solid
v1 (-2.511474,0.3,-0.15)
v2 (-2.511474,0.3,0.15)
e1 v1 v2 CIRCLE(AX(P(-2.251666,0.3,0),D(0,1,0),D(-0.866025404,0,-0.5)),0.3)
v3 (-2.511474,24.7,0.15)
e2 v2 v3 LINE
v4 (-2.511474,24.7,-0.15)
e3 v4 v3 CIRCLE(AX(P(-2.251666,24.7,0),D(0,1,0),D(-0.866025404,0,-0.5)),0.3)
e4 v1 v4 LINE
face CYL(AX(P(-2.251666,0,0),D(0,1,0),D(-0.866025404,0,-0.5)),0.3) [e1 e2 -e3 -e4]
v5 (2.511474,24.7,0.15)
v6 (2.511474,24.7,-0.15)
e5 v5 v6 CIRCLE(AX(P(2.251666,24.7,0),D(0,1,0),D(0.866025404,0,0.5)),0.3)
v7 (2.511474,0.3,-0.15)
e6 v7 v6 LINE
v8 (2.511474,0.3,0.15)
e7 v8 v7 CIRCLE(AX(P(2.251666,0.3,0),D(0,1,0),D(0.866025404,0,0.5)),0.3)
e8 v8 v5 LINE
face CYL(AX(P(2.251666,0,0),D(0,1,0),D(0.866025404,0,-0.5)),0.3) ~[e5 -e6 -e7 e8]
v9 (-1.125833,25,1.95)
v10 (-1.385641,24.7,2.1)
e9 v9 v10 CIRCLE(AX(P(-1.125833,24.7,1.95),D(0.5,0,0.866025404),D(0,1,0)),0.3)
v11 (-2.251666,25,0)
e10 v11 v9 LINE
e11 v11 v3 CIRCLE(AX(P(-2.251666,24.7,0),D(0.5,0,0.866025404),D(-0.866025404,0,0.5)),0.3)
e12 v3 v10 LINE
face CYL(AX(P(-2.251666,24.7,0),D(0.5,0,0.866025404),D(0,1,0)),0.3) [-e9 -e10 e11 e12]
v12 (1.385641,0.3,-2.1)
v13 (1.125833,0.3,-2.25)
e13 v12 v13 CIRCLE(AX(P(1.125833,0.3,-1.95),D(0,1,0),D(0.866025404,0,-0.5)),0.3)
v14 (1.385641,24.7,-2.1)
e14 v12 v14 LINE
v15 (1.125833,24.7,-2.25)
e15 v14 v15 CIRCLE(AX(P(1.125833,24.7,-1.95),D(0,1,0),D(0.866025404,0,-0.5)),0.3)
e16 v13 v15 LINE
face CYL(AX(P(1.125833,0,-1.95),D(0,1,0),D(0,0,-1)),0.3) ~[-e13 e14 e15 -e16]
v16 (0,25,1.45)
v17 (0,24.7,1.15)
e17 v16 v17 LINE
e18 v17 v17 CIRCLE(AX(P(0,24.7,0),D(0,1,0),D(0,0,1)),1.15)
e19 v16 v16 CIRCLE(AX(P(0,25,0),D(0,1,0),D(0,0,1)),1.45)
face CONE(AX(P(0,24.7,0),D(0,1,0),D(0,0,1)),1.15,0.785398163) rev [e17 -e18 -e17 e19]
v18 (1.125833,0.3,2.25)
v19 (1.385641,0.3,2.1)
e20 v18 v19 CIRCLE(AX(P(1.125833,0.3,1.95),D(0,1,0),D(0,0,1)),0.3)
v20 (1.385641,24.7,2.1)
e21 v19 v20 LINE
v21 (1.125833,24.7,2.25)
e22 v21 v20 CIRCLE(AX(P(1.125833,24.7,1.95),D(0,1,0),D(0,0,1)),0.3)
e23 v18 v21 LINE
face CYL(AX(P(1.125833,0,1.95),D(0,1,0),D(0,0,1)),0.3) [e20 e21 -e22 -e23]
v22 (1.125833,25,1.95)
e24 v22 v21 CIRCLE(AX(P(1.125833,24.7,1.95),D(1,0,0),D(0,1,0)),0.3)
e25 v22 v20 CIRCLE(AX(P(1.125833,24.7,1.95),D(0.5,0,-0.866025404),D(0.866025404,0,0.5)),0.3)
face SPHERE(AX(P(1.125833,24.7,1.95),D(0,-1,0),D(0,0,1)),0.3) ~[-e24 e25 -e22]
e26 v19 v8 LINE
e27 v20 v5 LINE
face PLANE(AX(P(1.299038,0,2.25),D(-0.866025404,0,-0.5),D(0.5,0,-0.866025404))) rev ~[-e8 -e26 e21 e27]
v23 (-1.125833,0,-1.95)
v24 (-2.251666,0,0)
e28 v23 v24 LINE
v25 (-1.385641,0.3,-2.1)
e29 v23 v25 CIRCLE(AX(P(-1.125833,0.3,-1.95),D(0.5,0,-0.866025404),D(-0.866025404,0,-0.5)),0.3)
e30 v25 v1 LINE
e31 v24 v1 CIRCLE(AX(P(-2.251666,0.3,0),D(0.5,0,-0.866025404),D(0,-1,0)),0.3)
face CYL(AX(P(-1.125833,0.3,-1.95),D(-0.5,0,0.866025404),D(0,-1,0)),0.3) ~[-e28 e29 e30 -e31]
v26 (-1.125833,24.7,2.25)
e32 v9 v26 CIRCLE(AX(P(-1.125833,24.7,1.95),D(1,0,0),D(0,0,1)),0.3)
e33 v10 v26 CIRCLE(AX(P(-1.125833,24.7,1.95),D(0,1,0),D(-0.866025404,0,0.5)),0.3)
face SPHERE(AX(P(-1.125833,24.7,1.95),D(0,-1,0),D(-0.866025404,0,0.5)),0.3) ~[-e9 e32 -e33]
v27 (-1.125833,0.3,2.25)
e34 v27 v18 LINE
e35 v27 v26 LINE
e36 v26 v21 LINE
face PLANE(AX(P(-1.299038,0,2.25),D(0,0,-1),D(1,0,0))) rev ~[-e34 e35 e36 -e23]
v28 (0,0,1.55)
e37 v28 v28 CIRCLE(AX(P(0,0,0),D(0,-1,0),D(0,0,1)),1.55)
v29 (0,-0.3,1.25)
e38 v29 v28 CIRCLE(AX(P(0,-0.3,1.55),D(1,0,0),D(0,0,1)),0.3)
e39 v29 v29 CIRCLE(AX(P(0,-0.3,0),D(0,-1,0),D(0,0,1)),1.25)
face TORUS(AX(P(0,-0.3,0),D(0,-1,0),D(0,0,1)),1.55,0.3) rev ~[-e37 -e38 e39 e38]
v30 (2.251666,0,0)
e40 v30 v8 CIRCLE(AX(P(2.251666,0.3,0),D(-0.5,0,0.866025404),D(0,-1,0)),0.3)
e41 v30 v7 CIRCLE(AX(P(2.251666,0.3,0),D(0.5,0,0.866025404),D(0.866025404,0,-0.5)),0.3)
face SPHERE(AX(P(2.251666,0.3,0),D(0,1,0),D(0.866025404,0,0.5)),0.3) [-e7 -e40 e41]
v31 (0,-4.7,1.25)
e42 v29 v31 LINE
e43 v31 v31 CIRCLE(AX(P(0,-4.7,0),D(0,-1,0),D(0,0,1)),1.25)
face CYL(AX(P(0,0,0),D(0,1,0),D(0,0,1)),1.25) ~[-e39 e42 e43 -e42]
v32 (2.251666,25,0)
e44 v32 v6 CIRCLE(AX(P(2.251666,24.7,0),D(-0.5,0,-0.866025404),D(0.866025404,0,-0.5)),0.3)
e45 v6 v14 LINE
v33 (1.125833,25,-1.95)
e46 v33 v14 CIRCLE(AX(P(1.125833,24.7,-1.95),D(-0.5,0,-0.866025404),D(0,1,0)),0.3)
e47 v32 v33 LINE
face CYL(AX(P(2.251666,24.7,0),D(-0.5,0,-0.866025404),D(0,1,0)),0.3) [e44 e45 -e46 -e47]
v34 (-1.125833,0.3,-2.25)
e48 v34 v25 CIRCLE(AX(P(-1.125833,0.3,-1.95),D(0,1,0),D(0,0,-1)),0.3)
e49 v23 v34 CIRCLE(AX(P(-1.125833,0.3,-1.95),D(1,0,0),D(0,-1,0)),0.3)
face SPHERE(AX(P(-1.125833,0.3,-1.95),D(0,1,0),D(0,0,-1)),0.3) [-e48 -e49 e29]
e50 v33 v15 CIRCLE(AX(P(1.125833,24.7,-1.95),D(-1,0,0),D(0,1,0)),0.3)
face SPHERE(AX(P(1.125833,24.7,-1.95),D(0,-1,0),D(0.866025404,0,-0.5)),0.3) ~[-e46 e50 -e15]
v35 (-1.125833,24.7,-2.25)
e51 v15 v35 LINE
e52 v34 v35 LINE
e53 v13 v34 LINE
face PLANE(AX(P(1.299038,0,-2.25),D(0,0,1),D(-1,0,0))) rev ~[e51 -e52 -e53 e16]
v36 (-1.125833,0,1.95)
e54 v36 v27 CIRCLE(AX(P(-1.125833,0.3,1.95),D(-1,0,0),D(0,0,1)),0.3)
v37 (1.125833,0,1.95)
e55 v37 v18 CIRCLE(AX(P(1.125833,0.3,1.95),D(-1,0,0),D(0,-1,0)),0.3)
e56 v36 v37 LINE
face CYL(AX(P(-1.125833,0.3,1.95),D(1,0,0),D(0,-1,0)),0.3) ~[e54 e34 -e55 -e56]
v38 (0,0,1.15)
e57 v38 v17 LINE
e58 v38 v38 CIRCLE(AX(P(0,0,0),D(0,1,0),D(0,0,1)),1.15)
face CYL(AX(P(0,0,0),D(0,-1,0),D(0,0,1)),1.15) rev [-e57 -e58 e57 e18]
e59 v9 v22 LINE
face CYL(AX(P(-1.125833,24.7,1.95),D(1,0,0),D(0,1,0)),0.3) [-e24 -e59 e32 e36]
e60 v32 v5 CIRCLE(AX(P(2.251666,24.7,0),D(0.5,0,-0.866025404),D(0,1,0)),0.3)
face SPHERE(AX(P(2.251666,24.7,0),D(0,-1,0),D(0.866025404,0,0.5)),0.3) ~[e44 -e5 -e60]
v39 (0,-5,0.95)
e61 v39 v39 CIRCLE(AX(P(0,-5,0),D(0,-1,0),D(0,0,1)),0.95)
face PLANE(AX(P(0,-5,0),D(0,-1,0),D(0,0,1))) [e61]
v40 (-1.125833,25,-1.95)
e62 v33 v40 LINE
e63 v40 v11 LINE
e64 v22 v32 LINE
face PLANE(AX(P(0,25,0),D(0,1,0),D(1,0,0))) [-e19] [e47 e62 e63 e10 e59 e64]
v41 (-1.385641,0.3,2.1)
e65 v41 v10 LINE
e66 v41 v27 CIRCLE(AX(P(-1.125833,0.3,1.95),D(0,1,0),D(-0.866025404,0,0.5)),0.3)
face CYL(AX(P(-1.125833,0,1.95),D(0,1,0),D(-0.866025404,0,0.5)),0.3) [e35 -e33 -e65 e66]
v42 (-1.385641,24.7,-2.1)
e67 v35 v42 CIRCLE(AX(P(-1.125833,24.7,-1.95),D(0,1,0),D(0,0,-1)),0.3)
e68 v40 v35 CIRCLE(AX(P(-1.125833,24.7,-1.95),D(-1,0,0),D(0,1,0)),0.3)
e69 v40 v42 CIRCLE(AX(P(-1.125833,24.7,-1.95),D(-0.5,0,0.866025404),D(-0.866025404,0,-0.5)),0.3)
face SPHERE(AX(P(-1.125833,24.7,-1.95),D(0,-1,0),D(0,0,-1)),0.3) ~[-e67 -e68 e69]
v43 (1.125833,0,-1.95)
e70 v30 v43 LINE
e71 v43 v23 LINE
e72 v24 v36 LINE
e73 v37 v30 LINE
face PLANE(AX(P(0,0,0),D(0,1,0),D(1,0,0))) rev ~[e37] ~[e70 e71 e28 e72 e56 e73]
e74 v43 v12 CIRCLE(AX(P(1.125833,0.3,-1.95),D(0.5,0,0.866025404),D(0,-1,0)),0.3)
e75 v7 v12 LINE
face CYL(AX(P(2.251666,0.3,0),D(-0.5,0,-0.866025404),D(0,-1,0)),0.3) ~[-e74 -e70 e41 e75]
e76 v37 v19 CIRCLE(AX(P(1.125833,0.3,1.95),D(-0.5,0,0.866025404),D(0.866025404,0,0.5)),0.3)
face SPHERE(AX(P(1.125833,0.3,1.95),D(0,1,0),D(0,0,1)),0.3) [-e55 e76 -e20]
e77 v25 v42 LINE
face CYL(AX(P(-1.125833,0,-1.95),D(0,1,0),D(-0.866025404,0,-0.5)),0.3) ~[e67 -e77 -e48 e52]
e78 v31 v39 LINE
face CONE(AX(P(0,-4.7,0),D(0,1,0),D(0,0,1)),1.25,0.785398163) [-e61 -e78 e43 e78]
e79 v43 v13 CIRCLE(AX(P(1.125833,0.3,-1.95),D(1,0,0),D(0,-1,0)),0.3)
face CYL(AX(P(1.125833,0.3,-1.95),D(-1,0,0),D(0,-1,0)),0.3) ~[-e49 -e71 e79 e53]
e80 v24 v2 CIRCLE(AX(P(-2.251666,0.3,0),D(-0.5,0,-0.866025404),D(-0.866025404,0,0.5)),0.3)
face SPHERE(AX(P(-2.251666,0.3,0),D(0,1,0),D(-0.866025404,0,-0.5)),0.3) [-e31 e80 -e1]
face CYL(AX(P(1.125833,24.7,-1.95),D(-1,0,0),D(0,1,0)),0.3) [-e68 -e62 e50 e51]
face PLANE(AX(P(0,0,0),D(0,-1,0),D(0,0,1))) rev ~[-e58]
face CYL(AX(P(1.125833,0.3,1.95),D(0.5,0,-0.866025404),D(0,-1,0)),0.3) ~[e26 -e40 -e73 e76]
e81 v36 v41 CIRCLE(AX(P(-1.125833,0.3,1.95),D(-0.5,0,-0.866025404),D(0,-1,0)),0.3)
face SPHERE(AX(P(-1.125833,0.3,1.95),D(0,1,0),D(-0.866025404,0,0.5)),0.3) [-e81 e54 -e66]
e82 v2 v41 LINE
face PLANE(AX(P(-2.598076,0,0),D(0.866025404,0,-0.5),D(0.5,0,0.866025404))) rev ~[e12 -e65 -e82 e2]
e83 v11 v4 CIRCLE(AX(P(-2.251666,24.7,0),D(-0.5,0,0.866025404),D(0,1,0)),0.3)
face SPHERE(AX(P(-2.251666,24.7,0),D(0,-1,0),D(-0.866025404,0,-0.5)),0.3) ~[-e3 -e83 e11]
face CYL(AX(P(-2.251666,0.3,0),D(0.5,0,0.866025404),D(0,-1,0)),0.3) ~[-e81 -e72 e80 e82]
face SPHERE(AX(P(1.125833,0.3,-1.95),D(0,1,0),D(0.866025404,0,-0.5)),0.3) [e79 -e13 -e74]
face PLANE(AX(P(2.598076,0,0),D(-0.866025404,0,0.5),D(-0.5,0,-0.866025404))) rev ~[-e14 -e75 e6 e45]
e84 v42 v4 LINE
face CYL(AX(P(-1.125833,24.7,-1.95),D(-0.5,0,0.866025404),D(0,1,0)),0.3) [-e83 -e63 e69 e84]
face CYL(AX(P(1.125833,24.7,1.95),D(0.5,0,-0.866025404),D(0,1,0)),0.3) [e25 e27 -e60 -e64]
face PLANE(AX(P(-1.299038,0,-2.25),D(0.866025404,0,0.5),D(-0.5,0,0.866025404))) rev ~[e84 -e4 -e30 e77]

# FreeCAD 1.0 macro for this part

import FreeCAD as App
import Part
import Sketcher
Q = App.Units.Quantity


def edges_at(feature, points):
    """Names of the edges that pass closest to the given points."""
    edges = feature.Shape.Edges
    near = lambda p: min(range(len(edges)), key=lambda i: edges[i].distToShape(Part.Vertex(*p))[0])
    return sorted({f"Edge{near(p) + 1}" for p in points})

doc = App.newDocument("Part")
body = doc.addObject("PartDesign::Body", "Body")

# Sketch on XZ plane
sketch1 = body.newObject("Sketcher::SketchObject", "Sketch")
sketch1.AttachmentSupport = (doc.getObject("XZ_Plane"), [""])
sketch1.MapMode = "FlatFace"
sketch1.addGeometry(Part.LineSegment(App.Vector(-1.3, -2.2, 0), App.Vector(-2.6, 0, 0)), False)
sketch1.addGeometry(Part.LineSegment(App.Vector(-2.6, 0, 0), App.Vector(-1.3, 2.2, 0)), False)
sketch1.addGeometry(Part.LineSegment(App.Vector(-1.3, 2.2, 0), App.Vector(1.3, 2.2, 0)), False)
sketch1.addGeometry(Part.LineSegment(App.Vector(1.3, 2.2, 0), App.Vector(2.6, 0, 0)), False)
sketch1.addGeometry(Part.LineSegment(App.Vector(2.6, 0, 0), App.Vector(1.3, -2.2, 0)), False)
sketch1.addGeometry(Part.LineSegment(App.Vector(1.3, -2.2, 0), App.Vector(-1.3, -2.2, 0)), False)
sketch1.addGeometry(Part.Circle(App.Vector(0, 0, 0), App.Vector(0, 0, 1), 1.1), False)
sketch1.addConstraint(Sketcher.Constraint("Coincident", 0, 2, 1, 1))
sketch1.addConstraint(Sketcher.Constraint("Coincident", 1, 2, 2, 1))
sketch1.addConstraint(Sketcher.Constraint("Coincident", 2, 2, 3, 1))
sketch1.addConstraint(Sketcher.Constraint("Coincident", 3, 2, 4, 1))
sketch1.addConstraint(Sketcher.Constraint("Coincident", 4, 2, 5, 1))
sketch1.addConstraint(Sketcher.Constraint("Coincident", 5, 2, 0, 1))
sketch1.addConstraint(Sketcher.Constraint("Horizontal", 2))
sketch1.addConstraint(Sketcher.Constraint("Horizontal", 5))
sketch1.addConstraint(Sketcher.Constraint("Coincident", 6, 3, -1, 1))
sketch1.addConstraint(Sketcher.Constraint("Symmetric", 0, 2, 3, 2, -1, 1))
sketch1.addConstraint(Sketcher.Constraint("Symmetric", 1, 2, 4, 2, -1, 1))
sketch1.addConstraint(Sketcher.Constraint("PointOnObject", 0, 2, -1))
sketch1.addConstraint(Sketcher.Constraint("Parallel", 0, 3))
sketch1.addConstraint(Sketcher.Constraint("Vertical", 2, 2, 4, 2))
sketch1.addConstraint(Sketcher.Constraint("Diameter", 6, 2.3))
sketch1.addConstraint(Sketcher.Constraint("Angle", 0, Q("120 deg")))
sketch1.addConstraint(Sketcher.Constraint("DistanceY", 4, 2, 2, 2, 4.5))
sketch1.addConstraint(Sketcher.Constraint("DistanceX", 2, 1, 2, 2, 2.598076))
pad1 = body.newObject("PartDesign::Pad", "Pad")
pad1.Profile = sketch1
pad1.Length = 25
pad1.Reversed = True
doc.recompute()

fillet = body.newObject("PartDesign::Fillet", "Fillet")
fillet.Base = (pad1, edges_at(pad1, [
    (1.299, 12.5, -2.25),
    (2.598, 12.5, 0),
    (1.299, 12.5, 2.25),
    (-1.299, 12.5, 2.25),
    (-2.598, 12.5, 0),
    (-1.299, 12.5, -2.25),
]))
fillet.Radius = 0.3
doc.recompute()

fillet2 = body.newObject("PartDesign::Fillet", "Fillet001")
fillet2.Base = (fillet, edges_at(fillet, [
    (0, 0, -2.25),
    (0, 25, -2.25),
    (1.949, 0, -1.125),
    (1.949, 0, 1.125),
    (0, 0, 2.25),
    (-1.949, 0, 1.125),
    (-1.949, 0, -1.125),
    (1.276, 0, 2.21),
    (-1.276, 0, 2.21),
    (-2.552, 0, 0),
    (-1.276, 0, -2.21),
    (2.552, 0, 0),
    (1.276, 0, -2.21),
    (1.949, 25, -1.125),
    (-1.949, 25, -1.125),
    (-1.949, 25, 1.125),
    (0, 25, 2.25),
    (1.949, 25, 1.125),
    (1.276, 25, 2.21),
    (-1.276, 25, 2.21),
    (-2.552, 25, 0),
    (-1.276, 25, -2.21),
    (2.552, 25, 0),
    (1.276, 25, -2.21),
]))
fillet2.Radius = 0.3

# Sketch on XZ plane
sketch2 = body.newObject("Sketcher::SketchObject", "Sketch001")
sketch2.AttachmentSupport = (doc.getObject("XZ_Plane"), [""])
sketch2.MapMode = "FlatFace"
sketch2.addGeometry(Part.Circle(App.Vector(0, 0, 0), App.Vector(0, 0, 1), 1.2), False)
sketch2.addConstraint(Sketcher.Constraint("Coincident", 0, 3, -1, 1))
sketch2.addConstraint(Sketcher.Constraint("Diameter", 0, 2.5))
pad2 = body.newObject("PartDesign::Pad", "Pad001")
pad2.Profile = sketch2
pad2.Length = 5
doc.recompute()

chamfer = body.newObject("PartDesign::Chamfer", "Chamfer")
chamfer.Base = (pad2, edges_at(pad2, [(0, -5, -1.25), (0, 25, -1.15)]))
chamfer.Size = 0.3
doc.recompute()

fillet3 = body.newObject("PartDesign::Fillet", "Fillet002")
fillet3.Base = (chamfer, edges_at(chamfer, [(0, 0, -1.25)]))
fillet3.Radius = 0.3

doc.recompute()
